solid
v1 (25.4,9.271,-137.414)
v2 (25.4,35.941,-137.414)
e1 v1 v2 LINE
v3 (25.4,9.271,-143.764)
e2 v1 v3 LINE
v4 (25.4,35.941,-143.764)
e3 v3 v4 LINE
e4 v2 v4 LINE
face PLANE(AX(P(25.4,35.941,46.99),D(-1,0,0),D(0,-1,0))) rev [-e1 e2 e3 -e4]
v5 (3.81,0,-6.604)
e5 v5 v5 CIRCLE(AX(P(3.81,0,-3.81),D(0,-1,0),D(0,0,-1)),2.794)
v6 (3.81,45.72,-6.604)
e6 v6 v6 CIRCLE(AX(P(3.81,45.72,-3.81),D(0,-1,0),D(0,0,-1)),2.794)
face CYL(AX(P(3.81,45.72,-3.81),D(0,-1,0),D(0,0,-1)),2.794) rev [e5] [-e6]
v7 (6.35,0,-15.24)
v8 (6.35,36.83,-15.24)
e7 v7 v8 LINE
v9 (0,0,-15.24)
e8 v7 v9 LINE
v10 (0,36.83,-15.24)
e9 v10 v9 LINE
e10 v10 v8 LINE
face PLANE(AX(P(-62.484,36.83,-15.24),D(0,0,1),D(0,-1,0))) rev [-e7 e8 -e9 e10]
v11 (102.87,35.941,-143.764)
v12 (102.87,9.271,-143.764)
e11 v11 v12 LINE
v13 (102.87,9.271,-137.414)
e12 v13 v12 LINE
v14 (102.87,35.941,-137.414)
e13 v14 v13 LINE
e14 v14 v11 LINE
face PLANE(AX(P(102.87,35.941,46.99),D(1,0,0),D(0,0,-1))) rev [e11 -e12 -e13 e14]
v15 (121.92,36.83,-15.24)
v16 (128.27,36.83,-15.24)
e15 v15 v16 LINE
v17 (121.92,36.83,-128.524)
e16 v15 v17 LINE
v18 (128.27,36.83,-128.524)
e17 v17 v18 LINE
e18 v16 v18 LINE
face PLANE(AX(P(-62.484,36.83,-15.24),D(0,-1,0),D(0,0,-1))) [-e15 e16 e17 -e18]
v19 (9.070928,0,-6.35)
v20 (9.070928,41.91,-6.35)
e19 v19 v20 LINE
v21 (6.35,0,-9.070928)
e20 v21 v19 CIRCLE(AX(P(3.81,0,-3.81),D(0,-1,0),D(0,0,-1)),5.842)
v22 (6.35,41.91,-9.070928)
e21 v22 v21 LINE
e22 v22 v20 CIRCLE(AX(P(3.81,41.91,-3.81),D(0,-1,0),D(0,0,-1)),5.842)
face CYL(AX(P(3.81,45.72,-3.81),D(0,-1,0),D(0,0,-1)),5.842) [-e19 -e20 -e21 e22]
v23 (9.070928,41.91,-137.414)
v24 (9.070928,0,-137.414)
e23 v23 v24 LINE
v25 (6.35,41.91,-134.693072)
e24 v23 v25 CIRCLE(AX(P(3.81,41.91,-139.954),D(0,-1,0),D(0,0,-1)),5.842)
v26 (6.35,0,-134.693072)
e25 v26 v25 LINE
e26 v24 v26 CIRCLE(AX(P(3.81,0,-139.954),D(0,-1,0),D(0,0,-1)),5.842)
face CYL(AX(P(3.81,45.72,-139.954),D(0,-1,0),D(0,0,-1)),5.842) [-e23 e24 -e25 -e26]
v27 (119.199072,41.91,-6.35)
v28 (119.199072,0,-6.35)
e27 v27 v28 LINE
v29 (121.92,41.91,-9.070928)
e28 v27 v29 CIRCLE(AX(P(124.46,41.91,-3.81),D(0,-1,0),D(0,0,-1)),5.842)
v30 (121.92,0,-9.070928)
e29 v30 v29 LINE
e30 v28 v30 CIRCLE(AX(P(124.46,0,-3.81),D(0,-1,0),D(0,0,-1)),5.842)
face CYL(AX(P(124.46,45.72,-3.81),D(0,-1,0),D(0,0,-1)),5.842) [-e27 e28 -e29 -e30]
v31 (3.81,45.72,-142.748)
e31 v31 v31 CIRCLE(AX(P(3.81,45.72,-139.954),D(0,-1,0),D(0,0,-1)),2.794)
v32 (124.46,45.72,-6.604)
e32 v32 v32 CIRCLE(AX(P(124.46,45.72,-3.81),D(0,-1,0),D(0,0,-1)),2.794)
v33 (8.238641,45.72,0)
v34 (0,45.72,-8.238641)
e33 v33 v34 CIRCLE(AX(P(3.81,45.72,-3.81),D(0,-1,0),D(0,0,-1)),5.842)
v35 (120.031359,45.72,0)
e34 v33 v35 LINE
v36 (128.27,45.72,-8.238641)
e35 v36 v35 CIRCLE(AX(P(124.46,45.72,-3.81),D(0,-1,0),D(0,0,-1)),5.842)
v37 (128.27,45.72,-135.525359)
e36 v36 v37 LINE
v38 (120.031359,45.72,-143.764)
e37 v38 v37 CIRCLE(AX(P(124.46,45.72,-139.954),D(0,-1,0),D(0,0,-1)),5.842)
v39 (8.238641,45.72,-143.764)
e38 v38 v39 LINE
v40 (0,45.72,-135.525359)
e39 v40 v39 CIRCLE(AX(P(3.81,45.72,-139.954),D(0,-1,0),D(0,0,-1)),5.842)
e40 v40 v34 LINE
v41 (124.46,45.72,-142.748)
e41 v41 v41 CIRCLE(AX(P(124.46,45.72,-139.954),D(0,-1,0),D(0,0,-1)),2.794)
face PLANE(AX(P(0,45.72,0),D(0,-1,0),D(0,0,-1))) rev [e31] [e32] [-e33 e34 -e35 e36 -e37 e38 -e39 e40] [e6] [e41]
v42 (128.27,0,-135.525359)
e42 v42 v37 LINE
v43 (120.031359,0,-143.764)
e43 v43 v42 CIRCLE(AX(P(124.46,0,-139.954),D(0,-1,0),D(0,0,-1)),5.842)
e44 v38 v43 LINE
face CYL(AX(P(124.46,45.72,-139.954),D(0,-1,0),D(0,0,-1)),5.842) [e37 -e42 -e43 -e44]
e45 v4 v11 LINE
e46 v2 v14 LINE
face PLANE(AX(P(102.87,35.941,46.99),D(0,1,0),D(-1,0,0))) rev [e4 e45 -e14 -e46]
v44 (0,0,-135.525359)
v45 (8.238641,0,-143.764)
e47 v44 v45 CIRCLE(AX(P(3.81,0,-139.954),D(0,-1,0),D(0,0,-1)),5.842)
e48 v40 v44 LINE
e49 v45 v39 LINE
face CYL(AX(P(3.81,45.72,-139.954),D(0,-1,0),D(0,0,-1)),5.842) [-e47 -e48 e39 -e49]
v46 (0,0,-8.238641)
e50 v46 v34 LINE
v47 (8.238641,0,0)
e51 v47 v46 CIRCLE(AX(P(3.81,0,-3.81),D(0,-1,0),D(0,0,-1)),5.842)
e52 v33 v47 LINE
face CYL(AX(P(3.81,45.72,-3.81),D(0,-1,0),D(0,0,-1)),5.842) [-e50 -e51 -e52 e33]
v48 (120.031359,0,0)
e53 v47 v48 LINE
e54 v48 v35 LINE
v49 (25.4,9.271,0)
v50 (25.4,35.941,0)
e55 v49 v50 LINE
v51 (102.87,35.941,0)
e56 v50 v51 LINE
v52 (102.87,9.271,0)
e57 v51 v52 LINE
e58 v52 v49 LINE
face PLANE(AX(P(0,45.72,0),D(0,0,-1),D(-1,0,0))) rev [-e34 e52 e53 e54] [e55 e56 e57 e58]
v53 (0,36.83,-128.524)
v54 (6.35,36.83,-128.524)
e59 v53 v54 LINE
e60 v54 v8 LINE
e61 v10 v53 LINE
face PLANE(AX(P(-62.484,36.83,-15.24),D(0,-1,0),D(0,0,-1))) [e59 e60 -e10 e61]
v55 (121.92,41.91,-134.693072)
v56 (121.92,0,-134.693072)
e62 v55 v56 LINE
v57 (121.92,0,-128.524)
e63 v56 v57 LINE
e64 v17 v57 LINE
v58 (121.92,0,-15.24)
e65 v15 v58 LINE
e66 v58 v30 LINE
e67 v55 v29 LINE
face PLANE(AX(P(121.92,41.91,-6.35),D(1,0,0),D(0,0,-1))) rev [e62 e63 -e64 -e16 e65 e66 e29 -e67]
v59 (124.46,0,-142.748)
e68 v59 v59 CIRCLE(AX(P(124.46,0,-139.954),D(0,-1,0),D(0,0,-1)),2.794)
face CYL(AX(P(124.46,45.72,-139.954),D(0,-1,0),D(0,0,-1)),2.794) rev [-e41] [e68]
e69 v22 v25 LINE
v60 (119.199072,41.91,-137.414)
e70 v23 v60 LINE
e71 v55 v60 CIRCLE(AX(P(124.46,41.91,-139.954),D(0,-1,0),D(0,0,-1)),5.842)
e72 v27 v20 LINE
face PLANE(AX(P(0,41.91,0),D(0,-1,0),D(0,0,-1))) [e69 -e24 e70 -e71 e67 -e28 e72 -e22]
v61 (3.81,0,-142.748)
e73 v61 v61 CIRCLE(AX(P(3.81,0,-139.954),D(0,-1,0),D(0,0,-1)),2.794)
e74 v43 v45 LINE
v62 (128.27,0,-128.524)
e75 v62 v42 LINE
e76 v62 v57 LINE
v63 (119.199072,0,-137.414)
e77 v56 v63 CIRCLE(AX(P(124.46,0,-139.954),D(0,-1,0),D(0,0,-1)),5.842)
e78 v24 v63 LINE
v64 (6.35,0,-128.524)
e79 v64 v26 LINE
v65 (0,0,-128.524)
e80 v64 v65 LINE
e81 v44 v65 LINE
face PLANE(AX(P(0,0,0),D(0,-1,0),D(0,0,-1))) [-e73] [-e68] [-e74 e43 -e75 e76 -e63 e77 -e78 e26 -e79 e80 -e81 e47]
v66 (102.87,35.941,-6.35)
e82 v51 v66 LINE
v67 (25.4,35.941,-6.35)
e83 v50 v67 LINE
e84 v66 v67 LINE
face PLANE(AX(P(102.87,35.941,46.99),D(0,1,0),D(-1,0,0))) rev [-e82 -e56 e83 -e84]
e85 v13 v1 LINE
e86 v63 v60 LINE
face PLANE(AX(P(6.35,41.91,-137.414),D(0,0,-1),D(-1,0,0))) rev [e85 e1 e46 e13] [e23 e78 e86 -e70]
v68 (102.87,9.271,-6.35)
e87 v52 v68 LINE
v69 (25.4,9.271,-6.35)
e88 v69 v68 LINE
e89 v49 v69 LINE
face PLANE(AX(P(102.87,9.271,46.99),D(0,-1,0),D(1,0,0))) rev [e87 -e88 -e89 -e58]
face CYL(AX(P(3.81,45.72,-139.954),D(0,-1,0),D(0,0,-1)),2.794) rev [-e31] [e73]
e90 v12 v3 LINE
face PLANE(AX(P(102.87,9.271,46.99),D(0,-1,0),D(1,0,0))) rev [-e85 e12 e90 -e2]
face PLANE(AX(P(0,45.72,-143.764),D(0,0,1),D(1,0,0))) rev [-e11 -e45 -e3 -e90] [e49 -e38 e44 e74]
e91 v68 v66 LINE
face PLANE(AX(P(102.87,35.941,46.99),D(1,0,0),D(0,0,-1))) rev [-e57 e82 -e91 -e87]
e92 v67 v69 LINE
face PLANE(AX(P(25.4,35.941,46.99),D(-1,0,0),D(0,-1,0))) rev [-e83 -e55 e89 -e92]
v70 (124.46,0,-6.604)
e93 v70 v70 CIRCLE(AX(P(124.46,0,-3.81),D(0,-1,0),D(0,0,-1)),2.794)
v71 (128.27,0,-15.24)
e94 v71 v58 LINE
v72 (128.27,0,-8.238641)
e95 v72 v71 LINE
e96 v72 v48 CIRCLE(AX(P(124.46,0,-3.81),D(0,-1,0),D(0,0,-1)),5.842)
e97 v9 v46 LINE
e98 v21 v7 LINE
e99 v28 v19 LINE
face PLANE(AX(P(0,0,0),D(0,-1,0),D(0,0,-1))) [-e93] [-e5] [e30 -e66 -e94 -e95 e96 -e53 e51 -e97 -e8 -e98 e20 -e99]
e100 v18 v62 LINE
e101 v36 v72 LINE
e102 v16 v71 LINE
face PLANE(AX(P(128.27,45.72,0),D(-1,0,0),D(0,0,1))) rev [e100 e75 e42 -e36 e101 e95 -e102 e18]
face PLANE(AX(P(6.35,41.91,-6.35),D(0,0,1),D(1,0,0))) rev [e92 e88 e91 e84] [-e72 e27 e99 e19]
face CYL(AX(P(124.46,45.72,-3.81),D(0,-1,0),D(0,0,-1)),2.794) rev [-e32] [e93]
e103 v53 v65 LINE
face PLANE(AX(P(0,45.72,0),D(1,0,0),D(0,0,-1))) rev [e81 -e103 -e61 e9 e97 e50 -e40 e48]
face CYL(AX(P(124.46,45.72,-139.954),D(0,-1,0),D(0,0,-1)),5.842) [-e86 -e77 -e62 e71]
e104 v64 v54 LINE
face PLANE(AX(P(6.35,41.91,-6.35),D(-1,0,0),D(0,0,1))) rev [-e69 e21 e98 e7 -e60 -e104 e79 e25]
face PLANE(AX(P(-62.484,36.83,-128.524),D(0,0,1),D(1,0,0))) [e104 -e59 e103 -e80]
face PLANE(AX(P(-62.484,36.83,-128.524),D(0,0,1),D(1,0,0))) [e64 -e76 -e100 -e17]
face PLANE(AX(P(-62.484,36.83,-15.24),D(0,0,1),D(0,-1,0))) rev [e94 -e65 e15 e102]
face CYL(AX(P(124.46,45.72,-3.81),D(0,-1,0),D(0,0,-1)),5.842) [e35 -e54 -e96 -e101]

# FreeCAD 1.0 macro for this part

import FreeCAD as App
import Part
import Sketcher
from FreeCAD import Vector
Q = App.Units.Quantity

doc = App.newDocument("Part")
body = doc.addObject("PartDesign::Body", "Body")

# Sketch on XZ plane
sketch1 = body.newObject("Sketcher::SketchObject", "Sketch")
sketch1.AttachmentSupport = (doc.getObject("XZ_Plane"), [""])
sketch1.MapMode = "FlatFace"
sketch1.addGeometry(Part.LineSegment(Vector(0, -144, 0), Vector(0, 0, 0)), False)
sketch1.addGeometry(Part.LineSegment(Vector(0, 0, 0), Vector(128, 0, 0)), False)
sketch1.addGeometry(Part.LineSegment(Vector(128, 0, 0), Vector(128, -144, 0)), False)
sketch1.addGeometry(Part.LineSegment(Vector(128, -144, 0), Vector(0, -144, 0)), False)
sketch1.addConstraint(Sketcher.Constraint("Coincident", 0, 2, 1, 1))
sketch1.addConstraint(Sketcher.Constraint("Coincident", 1, 2, 2, 1))
sketch1.addConstraint(Sketcher.Constraint("Coincident", 2, 2, 3, 1))
sketch1.addConstraint(Sketcher.Constraint("Coincident", 3, 2, 0, 1))
sketch1.addConstraint(Sketcher.Constraint("Vertical", 0))
sketch1.addConstraint(Sketcher.Constraint("Horizontal", 1))
sketch1.addConstraint(Sketcher.Constraint("Vertical", 2))
sketch1.addConstraint(Sketcher.Constraint("Horizontal", 3))
sketch1.addConstraint(Sketcher.Constraint("Coincident", 0, 2, -1, 1))
sketch1.addConstraint(Sketcher.Constraint("DistanceX", 1, 1, 1, 2, Q("5.05 in")))
sketch1.addConstraint(Sketcher.Constraint("DistanceY", 0, 1, 0, 2, Q("5.66 in")))
pad1 = body.newObject("PartDesign::Pad", "Pad")
pad1.Profile = sketch1
pad1.Length = Q("1.8 in")
pad1.Reversed = True

# Sketch on XZ plane
sketch2 = body.newObject("Sketcher::SketchObject", "Sketch001")
sketch2.AttachmentSupport = (doc.getObject("XZ_Plane"), [""])
sketch2.MapMode = "FlatFace"
sketch2.addGeometry(Part.LineSegment(Vector(6, -6, 0), Vector(6, -137, 0)), False)
sketch2.addGeometry(Part.LineSegment(Vector(6, -137, 0), Vector(122, -137, 0)), False)
sketch2.addGeometry(Part.LineSegment(Vector(122, -137, 0), Vector(122, -6, 0)), False)
sketch2.addGeometry(Part.LineSegment(Vector(122, -6, 0), Vector(6, -6, 0)), False)
sketch2.addConstraint(Sketcher.Constraint("Coincident", 0, 2, 1, 1))
sketch2.addConstraint(Sketcher.Constraint("Coincident", 1, 2, 2, 1))
sketch2.addConstraint(Sketcher.Constraint("Coincident", 2, 2, 3, 1))
sketch2.addConstraint(Sketcher.Constraint("Coincident", 3, 2, 0, 1))
sketch2.addConstraint(Sketcher.Constraint("Vertical", 0))
sketch2.addConstraint(Sketcher.Constraint("Horizontal", 1))
sketch2.addConstraint(Sketcher.Constraint("Vertical", 2))
sketch2.addConstraint(Sketcher.Constraint("Horizontal", 3))
sketch2.addConstraint(Sketcher.Constraint("DistanceX", 1, 1, 1, 2, Q("4.55 in")))
sketch2.addConstraint(Sketcher.Constraint("DistanceY", 0, 2, 0, 1, Q("5.16 in")))
sketch2.addConstraint(Sketcher.Constraint("DistanceX", -1, 1, 1, 2, Q("4.8 in")))
sketch2.addConstraint(Sketcher.Constraint("DistanceY", 0, 2, -1, 1, Q("5.41 in")))
pocket1 = body.newObject("PartDesign::Pocket", "Pocket")
pocket1.Profile = sketch2
pocket1.Length = Q("1.65 in")

# Sketch on XY plane
sketch3 = body.newObject("Sketcher::SketchObject", "Sketch002")
sketch3.AttachmentSupport = (doc.getObject("XY_Plane"), [""])
sketch3.MapMode = "FlatFace"
sketch3.AttachmentOffset = App.Placement(Vector(0, 0, -5.66 * 25.4), App.Rotation())
sketch3.addGeometry(Part.LineSegment(Vector(103, 36, 0), Vector(103, 9, 0)), False)
sketch3.addGeometry(Part.LineSegment(Vector(103, 9, 0), Vector(25, 9, 0)), False)
sketch3.addGeometry(Part.LineSegment(Vector(25, 9, 0), Vector(25, 36, 0)), False)
sketch3.addGeometry(Part.LineSegment(Vector(25, 36, 0), Vector(103, 36, 0)), False)
sketch3.addConstraint(Sketcher.Constraint("Coincident", 0, 2, 1, 1))
sketch3.addConstraint(Sketcher.Constraint("Coincident", 1, 2, 2, 1))
sketch3.addConstraint(Sketcher.Constraint("Coincident", 2, 2, 3, 1))
sketch3.addConstraint(Sketcher.Constraint("Coincident", 3, 2, 0, 1))
sketch3.addConstraint(Sketcher.Constraint("Vertical", 0))
sketch3.addConstraint(Sketcher.Constraint("Horizontal", 1))
sketch3.addConstraint(Sketcher.Constraint("Vertical", 2))
sketch3.addConstraint(Sketcher.Constraint("Horizontal", 3))
sketch3.addConstraint(Sketcher.Constraint("DistanceX", -1, 1, 1, 2, Q("1 in")))
sketch3.addConstraint(Sketcher.Constraint("DistanceX", 1, 2, 1, 1, Q("3.05 in")))
sketch3.addConstraint(Sketcher.Constraint("DistanceY", 0, 2, 0, 1, Q("1.05 in")))
sketch3.addConstraint(Sketcher.Constraint("DistanceY", -1, 1, 0, 2, Q("0.365 in")))
pocket2 = body.newObject("PartDesign::Pocket", "Pocket001")
pocket2.Profile = sketch3
pocket2.Length = Q("7.51 in")
pocket2.Reversed = True

# Sketch on YZ plane
sketch4 = body.newObject("Sketcher::SketchObject", "Sketch003")
sketch4.AttachmentSupport = (doc.getObject("YZ_Plane"), [""])
sketch4.MapMode = "FlatFace"
sketch4.AttachmentOffset = App.Placement(Vector(0, 0, 5.05 * 25.4), App.Rotation())
sketch4.addGeometry(Part.LineSegment(Vector(37, -15, 0), Vector(-10, -15, 0)), False)
sketch4.addGeometry(Part.LineSegment(Vector(-10, -15, 0), Vector(-10, -129, 0)), False)
sketch4.addGeometry(Part.LineSegment(Vector(-10, -129, 0), Vector(37, -129, 0)), False)
sketch4.addGeometry(Part.LineSegment(Vector(37, -129, 0), Vector(37, -15, 0)), False)
sketch4.addConstraint(Sketcher.Constraint("Coincident", 0, 2, 1, 1))
sketch4.addConstraint(Sketcher.Constraint("Coincident", 1, 2, 2, 1))
sketch4.addConstraint(Sketcher.Constraint("Coincident", 2, 2, 3, 1))
sketch4.addConstraint(Sketcher.Constraint("Coincident", 3, 2, 0, 1))
sketch4.addConstraint(Sketcher.Constraint("Horizontal", 0))
sketch4.addConstraint(Sketcher.Constraint("Vertical", 1))
sketch4.addConstraint(Sketcher.Constraint("Horizontal", 2))
sketch4.addConstraint(Sketcher.Constraint("Vertical", 3))
sketch4.addConstraint(Sketcher.Constraint("DistanceX", 0, 2, 0, 1, Q("1.85 in")))
sketch4.addConstraint(Sketcher.Constraint("DistanceY", 1, 2, 1, 1, Q("4.46 in")))
sketch4.addConstraint(Sketcher.Constraint("DistanceX", 0, 2, -1, 1, Q("0.4 in")))
sketch4.addConstraint(Sketcher.Constraint("DistanceY", 0, 2, -1, 1, Q("0.6 in")))
pocket3 = body.newObject("PartDesign::Pocket", "Pocket002")
pocket3.Profile = sketch4
pocket3.Length = Q("7.51 in")

# Sketch on XZ plane
sketch5 = body.newObject("Sketcher::SketchObject", "Sketch004")
sketch5.AttachmentSupport = (doc.getObject("XZ_Plane"), [""])
sketch5.MapMode = "FlatFace"
sketch5.addGeometry(Part.Circle(Vector(3.8, -3.8, 0), Vector(0, 0, 1), 2.8), False)
sketch5.addGeometry(Part.Circle(Vector(124.5, -3.8, 0), Vector(0, 0, 1), 2.8), False)
sketch5.addGeometry(Part.Circle(Vector(3.8, -140, 0), Vector(0, 0, 1), 2.8), False)
sketch5.addGeometry(Part.Circle(Vector(124.5, -140, 0), Vector(0, 0, 1), 2.8), False)
sketch5.addConstraint(Sketcher.Constraint("Equal", 0, 1))
sketch5.addConstraint(Sketcher.Constraint("Equal", 1, 2))
sketch5.addConstraint(Sketcher.Constraint("Equal", 2, 3))
sketch5.addConstraint(Sketcher.Constraint("Horizontal", 0, 3, 1, 3))
sketch5.addConstraint(Sketcher.Constraint("Horizontal", 2, 3, 3, 3))
sketch5.addConstraint(Sketcher.Constraint("Vertical", 0, 3, 2, 3))
sketch5.addConstraint(Sketcher.Constraint("Vertical", 1, 3, 3, 3))
sketch5.addConstraint(Sketcher.Constraint("Diameter", 0, Q("0.22 in")))
sketch5.addConstraint(Sketcher.Constraint("DistanceX", -1, 1, 1, 3, Q("4.9 in")))
sketch5.addConstraint(Sketcher.Constraint("DistanceX", -1, 1, 0, 3, Q("0.15 in")))
sketch5.addConstraint(Sketcher.Constraint("DistanceY", 0, 3, -1, 1, Q("0.15 in")))
sketch5.addConstraint(Sketcher.Constraint("DistanceY", 2, 3, -1, 1, Q("5.51 in")))
pocket4 = body.newObject("PartDesign::Pocket", "Pocket003")
pocket4.Profile = sketch5
pocket4.Type = "ThroughAll"

# Sketch on XZ plane
sketch6 = body.newObject("Sketcher::SketchObject", "Sketch005")
sketch6.AttachmentSupport = (doc.getObject("XZ_Plane"), [""])
sketch6.MapMode = "FlatFace"
sketch6.addGeometry(Part.Circle(Vector(3.8, -3.8, 0), Vector(0, 0, 1), 5.8), False)
sketch6.addGeometry(Part.Circle(Vector(3.8, -3.8, 0), Vector(0, 0, 1), 2.8), False)
sketch6.addConstraint(Sketcher.Constraint("Coincident", 1, 3, 0, 3))
sketch6.addConstraint(Sketcher.Constraint("Diameter", 0, Q("0.46 in")))
sketch6.addConstraint(Sketcher.Constraint("Diameter", 1, Q("0.22 in")))
sketch6.addConstraint(Sketcher.Constraint("DistanceX", -1, 1, 0, 3, Q("0.15 in")))
sketch6.addConstraint(Sketcher.Constraint("DistanceY", 0, 3, -1, 1, Q("0.15 in")))
pad2 = body.newObject("PartDesign::Pad", "Pad001")
pad2.Profile = sketch6
pad2.Length = Q("1.8 in")
pad2.Reversed = True

# Sketch on XZ plane
sketch7 = body.newObject("Sketcher::SketchObject", "Sketch006")
sketch7.AttachmentSupport = (doc.getObject("XZ_Plane"), [""])
sketch7.MapMode = "FlatFace"
sketch7.AttachmentOffset = App.Placement(Vector(0, 0, -1.8 * 25.4), App.Rotation())
sketch7.addGeometry(Part.Circle(Vector(124.5, -3.8, 0), Vector(0, 0, 1), 5.8), False)
sketch7.addGeometry(Part.Circle(Vector(124.5, -3.8, 0), Vector(0, 0, 1), 2.8), False)
sketch7.addConstraint(Sketcher.Constraint("Coincident", 1, 3, 0, 3))
sketch7.addConstraint(Sketcher.Constraint("Diameter", 0, Q("0.46 in")))
sketch7.addConstraint(Sketcher.Constraint("Diameter", 1, Q("0.22 in")))
sketch7.addConstraint(Sketcher.Constraint("DistanceX", -1, 1, 0, 3, Q("4.9 in")))
sketch7.addConstraint(Sketcher.Constraint("DistanceY", 0, 3, -1, 1, Q("0.15 in")))
pad3 = body.newObject("PartDesign::Pad", "Pad002")
pad3.Profile = sketch7
pad3.Length = Q("1.8 in")

# Sketch on XZ plane
sketch8 = body.newObject("Sketcher::SketchObject", "Sketch007")
sketch8.AttachmentSupport = (doc.getObject("XZ_Plane"), [""])
sketch8.MapMode = "FlatFace"
sketch8.addGeometry(Part.Circle(Vector(3.8, -140, 0), Vector(0, 0, 1), 5.8), False)
sketch8.addGeometry(Part.Circle(Vector(3.8, -140, 0), Vector(0, 0, 1), 2.8), False)
sketch8.addConstraint(Sketcher.Constraint("Coincident", 1, 3, 0, 3))
sketch8.addConstraint(Sketcher.Constraint("Diameter", 0, Q("0.46 in")))
sketch8.addConstraint(Sketcher.Constraint("Diameter", 1, Q("0.22 in")))
sketch8.addConstraint(Sketcher.Constraint("DistanceX", -1, 1, 0, 3, Q("0.15 in")))
sketch8.addConstraint(Sketcher.Constraint("DistanceY", 0, 3, -1, 1, Q("5.51 in")))
pad4 = body.newObject("PartDesign::Pad", "Pad003")
pad4.Profile = sketch8
pad4.Length = Q("1.8 in")
pad4.Reversed = True

# Sketch on XZ plane
sketch9 = body.newObject("Sketcher::SketchObject", "Sketch008")
sketch9.AttachmentSupport = (doc.getObject("XZ_Plane"), [""])
sketch9.MapMode = "FlatFace"
sketch9.AttachmentOffset = App.Placement(Vector(0, 0, -1.8 * 25.4), App.Rotation())
sketch9.addGeometry(Part.Circle(Vector(124.5, -140, 0), Vector(0, 0, 1), 5.8), False)
sketch9.addGeometry(Part.Circle(Vector(124.5, -140, 0), Vector(0, 0, 1), 2.8), False)
sketch9.addConstraint(Sketcher.Constraint("Coincident", 1, 3, 0, 3))
sketch9.addConstraint(Sketcher.Constraint("Diameter", 0, Q("0.46 in")))
sketch9.addConstraint(Sketcher.Constraint("Diameter", 1, Q("0.22 in")))
sketch9.addConstraint(Sketcher.Constraint("DistanceX", -1, 1, 0, 3, Q("4.9 in")))
sketch9.addConstraint(Sketcher.Constraint("DistanceY", 0, 3, -1, 1, Q("5.51 in")))
pad5 = body.newObject("PartDesign::Pad", "Pad004")
pad5.Profile = sketch9
pad5.Length = Q("1.8 in")

doc.recompute()
